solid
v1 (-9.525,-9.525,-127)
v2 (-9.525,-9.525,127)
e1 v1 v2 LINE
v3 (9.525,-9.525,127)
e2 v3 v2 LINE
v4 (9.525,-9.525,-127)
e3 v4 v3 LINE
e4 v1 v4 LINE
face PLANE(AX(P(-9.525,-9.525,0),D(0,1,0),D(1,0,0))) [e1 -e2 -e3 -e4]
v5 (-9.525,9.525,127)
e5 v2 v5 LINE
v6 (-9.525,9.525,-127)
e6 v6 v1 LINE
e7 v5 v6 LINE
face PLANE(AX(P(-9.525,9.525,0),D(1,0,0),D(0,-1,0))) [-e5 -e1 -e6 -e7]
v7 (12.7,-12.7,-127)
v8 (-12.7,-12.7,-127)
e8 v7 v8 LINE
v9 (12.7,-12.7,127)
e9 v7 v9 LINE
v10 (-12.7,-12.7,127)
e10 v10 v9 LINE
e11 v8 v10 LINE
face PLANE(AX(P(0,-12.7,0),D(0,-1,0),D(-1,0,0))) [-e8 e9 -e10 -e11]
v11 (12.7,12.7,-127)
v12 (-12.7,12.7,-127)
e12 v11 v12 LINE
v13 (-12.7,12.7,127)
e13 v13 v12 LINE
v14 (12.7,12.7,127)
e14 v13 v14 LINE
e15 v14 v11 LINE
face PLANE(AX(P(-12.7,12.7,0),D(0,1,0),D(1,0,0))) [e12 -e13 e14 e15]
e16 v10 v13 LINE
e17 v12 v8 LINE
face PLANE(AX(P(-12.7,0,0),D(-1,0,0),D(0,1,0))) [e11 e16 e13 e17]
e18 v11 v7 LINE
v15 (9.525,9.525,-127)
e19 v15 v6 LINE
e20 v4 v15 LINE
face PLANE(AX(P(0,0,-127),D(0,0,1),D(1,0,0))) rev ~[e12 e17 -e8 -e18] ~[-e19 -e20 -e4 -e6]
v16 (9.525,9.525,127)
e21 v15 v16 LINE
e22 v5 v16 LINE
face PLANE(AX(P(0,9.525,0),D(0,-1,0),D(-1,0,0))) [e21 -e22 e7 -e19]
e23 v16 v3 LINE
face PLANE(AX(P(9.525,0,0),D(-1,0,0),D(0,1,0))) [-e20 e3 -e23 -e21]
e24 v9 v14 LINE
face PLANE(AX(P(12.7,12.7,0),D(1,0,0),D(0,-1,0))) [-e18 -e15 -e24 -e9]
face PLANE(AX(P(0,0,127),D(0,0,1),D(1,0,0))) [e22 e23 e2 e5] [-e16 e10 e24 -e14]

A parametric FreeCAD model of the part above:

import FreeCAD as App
import Part
import Sketcher

V = App.Vector
Q = App.Units.Quantity


def add_polygon(sketch, points):
    """Adds a closed chain of lines whose ends are joined by coincident constraints."""
    first, n = sketch.GeometryCount, len(points)
    for a, b in zip(points, points[1:] + points[:1]):
        sketch.addGeometry(Part.LineSegment(App.Vector(*a, 0), App.Vector(*b, 0)), False)
    for i in range(n):
        sketch.addConstraint(Sketcher.Constraint("Coincident", first + i, 2, first + (i + 1) % n, 1))

doc = App.newDocument("Part")
params = doc.addObject("Spreadsheet::Sheet", "Params")
for row, (alias, value) in enumerate([
    ("sketch1_width", "1 in"),
    ("pad1_length", "10 in"),
], start=1):
    params.set(f"A{row}", alias)
    params.set(f"B{row}", "=" + value)
    params.setAlias(f"B{row}", alias)

body = doc.addObject("PartDesign::Body", "Body")

# Sketch on XY plane
sketch1 = body.newObject("Sketcher::SketchObject", "Sketch")
sketch1.AttachmentSupport = (doc.getObject("XY_Plane"), [""])
sketch1.MapMode = "FlatFace"
add_polygon(sketch1, [(-13, 13), (-13, -13), (13, -13), (13, 13)])  # lines 0-3
add_polygon(sketch1, [(-10, 10), (10, 10), (10, -10), (-10, -10)])  # lines 4-7
sketch1.addConstraint(Sketcher.Constraint("Vertical", 0))
sketch1.addConstraint(Sketcher.Constraint("Horizontal", 1))
sketch1.addConstraint(Sketcher.Constraint("Vertical", 2))
sketch1.addConstraint(Sketcher.Constraint("Horizontal", 3))
sketch1.addConstraint(Sketcher.Constraint("Horizontal", 4))
sketch1.addConstraint(Sketcher.Constraint("Vertical", 5))
sketch1.addConstraint(Sketcher.Constraint("Horizontal", 6))
sketch1.addConstraint(Sketcher.Constraint("Vertical", 7))
sketch1.addConstraint(Sketcher.Constraint("Symmetric", 0, 2, 2, 2, -1, 1))
sketch1.addConstraint(Sketcher.Constraint("Symmetric", 4, 2, 6, 2, -1, 1))
sketch1.addConstraint(Sketcher.Constraint("Equal", 3, 0))
sketch1.addConstraint(Sketcher.Constraint("Equal", 6, 5))
sketch1.addConstraint(Sketcher.Constraint("DistanceX", 1, 1, 1, 2, Q("1 in")))
sketch1.addConstraint(Sketcher.Constraint("DistanceX", 4, 2, 2, 2, Q("0.125 in")))
sketch1.setExpression("Constraints[20]", "Params.sketch1_width")
pad1 = body.newObject("PartDesign::Pad", "Pad")
pad1.Profile = sketch1
pad1.setExpression("Length", "Params.pad1_length")
pad1.Midplane = True

doc.recompute()
